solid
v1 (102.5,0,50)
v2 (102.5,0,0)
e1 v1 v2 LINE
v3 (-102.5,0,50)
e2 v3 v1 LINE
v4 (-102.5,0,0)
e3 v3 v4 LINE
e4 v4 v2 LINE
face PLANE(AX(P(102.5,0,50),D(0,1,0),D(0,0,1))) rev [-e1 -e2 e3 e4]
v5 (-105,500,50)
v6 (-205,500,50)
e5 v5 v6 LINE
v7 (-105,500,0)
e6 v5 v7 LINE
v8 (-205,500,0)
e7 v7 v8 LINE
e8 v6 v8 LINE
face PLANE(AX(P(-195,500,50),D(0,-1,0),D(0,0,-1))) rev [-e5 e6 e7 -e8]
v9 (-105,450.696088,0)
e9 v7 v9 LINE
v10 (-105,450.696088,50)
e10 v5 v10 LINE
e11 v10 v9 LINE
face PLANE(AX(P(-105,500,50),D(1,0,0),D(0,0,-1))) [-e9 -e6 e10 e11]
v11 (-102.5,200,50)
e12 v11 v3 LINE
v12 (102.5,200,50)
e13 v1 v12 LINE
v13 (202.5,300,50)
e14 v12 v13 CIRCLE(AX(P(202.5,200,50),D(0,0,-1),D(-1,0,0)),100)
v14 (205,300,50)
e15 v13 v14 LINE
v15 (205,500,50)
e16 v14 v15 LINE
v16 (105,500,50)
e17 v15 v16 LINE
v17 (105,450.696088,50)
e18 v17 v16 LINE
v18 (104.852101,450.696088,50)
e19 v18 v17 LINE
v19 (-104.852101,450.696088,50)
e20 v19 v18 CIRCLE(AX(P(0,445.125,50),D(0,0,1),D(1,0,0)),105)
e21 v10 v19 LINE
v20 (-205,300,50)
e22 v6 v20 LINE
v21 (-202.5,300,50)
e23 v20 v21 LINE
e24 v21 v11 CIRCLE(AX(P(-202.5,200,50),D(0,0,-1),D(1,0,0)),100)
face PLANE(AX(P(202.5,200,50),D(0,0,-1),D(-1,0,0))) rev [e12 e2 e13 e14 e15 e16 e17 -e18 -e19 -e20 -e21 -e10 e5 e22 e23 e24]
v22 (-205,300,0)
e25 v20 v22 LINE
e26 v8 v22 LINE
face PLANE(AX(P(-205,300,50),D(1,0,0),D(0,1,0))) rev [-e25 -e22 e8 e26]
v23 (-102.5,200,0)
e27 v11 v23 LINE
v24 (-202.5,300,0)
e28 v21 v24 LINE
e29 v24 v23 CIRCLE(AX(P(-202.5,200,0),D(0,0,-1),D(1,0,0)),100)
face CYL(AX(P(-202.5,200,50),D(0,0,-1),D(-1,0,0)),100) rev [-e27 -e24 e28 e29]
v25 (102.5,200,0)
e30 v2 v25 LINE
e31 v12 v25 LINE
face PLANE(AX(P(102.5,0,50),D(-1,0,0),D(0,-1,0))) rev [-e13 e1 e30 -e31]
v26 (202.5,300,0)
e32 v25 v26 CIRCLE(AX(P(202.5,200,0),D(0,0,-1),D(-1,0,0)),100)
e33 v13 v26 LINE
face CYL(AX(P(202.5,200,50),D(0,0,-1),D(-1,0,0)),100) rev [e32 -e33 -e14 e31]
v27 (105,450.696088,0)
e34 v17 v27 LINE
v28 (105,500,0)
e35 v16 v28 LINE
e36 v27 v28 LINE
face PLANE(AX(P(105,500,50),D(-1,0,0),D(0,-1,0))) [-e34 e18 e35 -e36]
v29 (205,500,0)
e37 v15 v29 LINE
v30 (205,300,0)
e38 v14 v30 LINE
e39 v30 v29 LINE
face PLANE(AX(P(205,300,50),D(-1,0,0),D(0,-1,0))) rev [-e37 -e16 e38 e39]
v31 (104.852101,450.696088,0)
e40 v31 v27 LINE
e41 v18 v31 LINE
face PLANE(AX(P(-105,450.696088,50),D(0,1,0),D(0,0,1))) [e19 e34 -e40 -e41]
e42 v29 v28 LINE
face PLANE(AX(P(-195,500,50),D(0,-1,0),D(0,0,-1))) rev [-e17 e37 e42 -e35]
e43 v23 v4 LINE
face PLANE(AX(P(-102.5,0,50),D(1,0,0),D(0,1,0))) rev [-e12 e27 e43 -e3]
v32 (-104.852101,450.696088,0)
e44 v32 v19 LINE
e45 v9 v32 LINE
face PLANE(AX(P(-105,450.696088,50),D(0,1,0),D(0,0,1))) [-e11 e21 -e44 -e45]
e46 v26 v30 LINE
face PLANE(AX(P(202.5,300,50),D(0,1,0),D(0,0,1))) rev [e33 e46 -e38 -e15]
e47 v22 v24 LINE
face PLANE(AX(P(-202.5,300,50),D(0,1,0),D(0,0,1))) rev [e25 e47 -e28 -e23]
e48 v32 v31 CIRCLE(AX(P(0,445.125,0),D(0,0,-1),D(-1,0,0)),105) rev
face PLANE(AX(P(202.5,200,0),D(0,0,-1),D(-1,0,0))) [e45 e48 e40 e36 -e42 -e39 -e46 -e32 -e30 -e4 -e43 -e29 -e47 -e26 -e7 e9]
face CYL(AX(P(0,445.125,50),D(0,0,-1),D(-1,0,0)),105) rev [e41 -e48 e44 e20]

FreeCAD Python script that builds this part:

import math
import FreeCAD as App
import Part
import Sketcher

V = App.Vector

doc = App.newDocument("Part")
params = doc.addObject("Spreadsheet::Sheet", "Params")
for row, (alias, value) in enumerate([
    ("sketch1_radius", "100 mm"),
    ("sketch1_radius2", "10 mm"),
    ("sketch1_width", "205 mm"),
    ("sketch1_height", "200 mm"),
    ("sketch1_height2", "190 mm"),
    ("pad1_length", "50 mm"),
    ("sketch2_diameter", "6.1 mm"),
    ("pocket1_length", "6 mm"),
    ("sketch3_diameter", "6.1 mm"),
    ("pocket2_length", "6 mm"),
    ("sketch4_radius", "100 mm"),
    ("sketch4_width", "410 mm"),
    ("sketch4_width2", "205 mm"),
    ("sketch4_height", "200 mm"),
    ("pad2_length", "50 mm"),
    ("sketch5_diameter", "210 mm"),
    ("sketch6_width", "210 mm"),
], start=1):
    params.set(f"A{row}", alias)
    params.set(f"B{row}", "=" + value)
    params.setAlias(f"B{row}", alias)

body = doc.addObject("PartDesign::Body", "Body")

# Sketch on XY plane
sketch1 = doc.addObject("Sketcher::SketchObject", "Sketch")
body.addObject(sketch1)
sketch1.AttachmentSupport = (doc.XY_Plane, [""])
sketch1.MapMode = "FlatFace"
sketch1.addGeometry([
    Part.LineSegment(V(-102.5, 0, 0), V(102.5, 0, 0)),  # 0
    Part.LineSegment(V(102.5, 0, 0), V(102.5, 200, 0)),  # 1
    Part.ArcOfCircle(Part.Circle(V(202.5, 200, 0), V(0, 0, 1), 100), math.radians(90), math.radians(180)),  # 2
    Part.LineSegment(V(202.5, 300, 0), V(205, 300, 0)),  # 3
    Part.LineSegment(V(205, 300, 0), V(205, 490, 0)),  # 4
    Part.ArcOfCircle(Part.Circle(V(195, 490, 0), V(0, 0, 1), 10), math.radians(0), math.radians(90)),  # 5
    Part.LineSegment(V(195, 500, 0), V(112.5, 500, 0)),  # 6
    Part.ArcOfCircle(Part.Circle(V(112.5, 490, 0), V(0, 0, 1), 10), math.radians(90), math.radians(180)),  # 7
    Part.LineSegment(V(102.5, 490, 0), V(102.5, 400.25, 0)),  # 8
    Part.ArcOfCircle(Part.Circle(V(102.25, 400.25, 0), V(0, 0, 1), 0.25), math.radians(-90), math.radians(0)),  # 9
    Part.LineSegment(V(102.25, 400, 0), V(-102.25, 400, 0)),  # 10
    Part.ArcOfCircle(Part.Circle(V(-102.25, 400.25, 0), V(0, 0, 1), 0.25), math.radians(-180), math.radians(-90)),  # 11
    Part.LineSegment(V(-102.5, 400.25, 0), V(-102.5, 490, 0)),  # 12
    Part.ArcOfCircle(Part.Circle(V(-112.5, 490, 0), V(0, 0, 1), 10), math.radians(0), math.radians(90)),  # 13
    Part.LineSegment(V(-112.5, 500, 0), V(-195, 500, 0)),  # 14
    Part.ArcOfCircle(Part.Circle(V(-195, 490, 0), V(0, 0, 1), 10), math.radians(90), math.radians(180)),  # 15
    Part.LineSegment(V(-205, 490, 0), V(-205, 300, 0)),  # 16
    Part.LineSegment(V(-205, 300, 0), V(-202.5, 300, 0)),  # 17
    Part.ArcOfCircle(Part.Circle(V(-202.5, 200, 0), V(0, 0, 1), 100), math.radians(0), math.radians(90)),  # 18
    Part.LineSegment(V(-102.5, 200, 0), V(-102.5, 0, 0)),  # 19
], False)
sketch1.addConstraint([
    Sketcher.Constraint("Coincident", 0, 2, 1, 1),
    Sketcher.Constraint("Tangent", 1, 2, 2, 2),
    Sketcher.Constraint("Tangent", 2, 1, 3, 1),
    Sketcher.Constraint("Coincident", 3, 2, 4, 1),
    Sketcher.Constraint("Tangent", 4, 2, 5, 1),
    Sketcher.Constraint("Tangent", 5, 2, 6, 1),
    Sketcher.Constraint("Tangent", 6, 2, 7, 1),
    Sketcher.Constraint("Tangent", 7, 2, 8, 1),
    Sketcher.Constraint("Tangent", 8, 2, 9, 2),
    Sketcher.Constraint("Tangent", 9, 1, 10, 1),
    Sketcher.Constraint("Tangent", 10, 2, 11, 2),
    Sketcher.Constraint("Tangent", 11, 1, 12, 1),
    Sketcher.Constraint("Tangent", 12, 2, 13, 1),
    Sketcher.Constraint("Tangent", 13, 2, 14, 1),
    Sketcher.Constraint("Tangent", 14, 2, 15, 1),
    Sketcher.Constraint("Tangent", 15, 2, 16, 1),
    Sketcher.Constraint("Coincident", 16, 2, 17, 1),
    Sketcher.Constraint("Tangent", 17, 2, 18, 2),
    Sketcher.Constraint("Tangent", 18, 1, 19, 1),
    Sketcher.Constraint("Coincident", 19, 2, 0, 1),
    Sketcher.Constraint("Horizontal", 0),
    Sketcher.Constraint("Vertical", 1),
    Sketcher.Constraint("Horizontal", 3),
    Sketcher.Constraint("Vertical", 4),
    Sketcher.Constraint("Horizontal", 6),
    Sketcher.Constraint("Vertical", 8),
    Sketcher.Constraint("Horizontal", 10),
    Sketcher.Constraint("Vertical", 12),
    Sketcher.Constraint("Horizontal", 14),
    Sketcher.Constraint("Vertical", 16),
    Sketcher.Constraint("Horizontal", 17),
    Sketcher.Constraint("Vertical", 19),
    Sketcher.Constraint("Equal", 5, 7),
    Sketcher.Constraint("Equal", 9, 11),
    Sketcher.Constraint("Equal", 7, 13),
    Sketcher.Constraint("Equal", 13, 15),
    Sketcher.Constraint("Equal", 2, 18),
    Sketcher.Constraint("Symmetric", 0, 2, 19, 2, -1, 1),
    Sketcher.Constraint("Symmetric", 7, 3, 13, 3, -2),
    Sketcher.Constraint("Symmetric", 3, 2, 16, 2, -2),
    Sketcher.Constraint("Vertical", 1, 2, 7, 2),
    Sketcher.Constraint("Radius", 2, 100.0),
    Sketcher.Constraint("Radius", 5, 10.0),
    Sketcher.Constraint("DistanceX", 0, 1, 0, 2, 205.0),
    Sketcher.Constraint("DistanceY", 1, 1, 1, 2, 200.0),
    Sketcher.Constraint("DistanceY", 4, 1, 4, 2, 190.0),
    Sketcher.Constraint("Radius", 9, 0.25),
    Sketcher.Constraint("DistanceX", 3, 1, 3, 2, 2.5),
    Sketcher.Constraint("DistanceY", -1, 1, 9, 1, 400.0),
])
sketch1.setExpression("Constraints[41]", "Params.sketch1_radius")
sketch1.setExpression("Constraints[42]", "Params.sketch1_radius2")
sketch1.setExpression("Constraints[43]", "Params.sketch1_width")
sketch1.setExpression("Constraints[44]", "Params.sketch1_height")
sketch1.setExpression("Constraints[45]", "Params.sketch1_height2")
pad1 = doc.addObject("PartDesign::Pad", "Pad")
body.addObject(pad1)
pad1.Profile = sketch1
pad1.setExpression("Length", "Params.pad1_length")

# Sketch on YZ plane
sketch2 = doc.addObject("Sketcher::SketchObject", "Sketch001")
body.addObject(sketch2)
sketch2.AttachmentSupport = (doc.YZ_Plane, [""])
sketch2.MapMode = "FlatFace"
sketch2.AttachmentOffset = App.Placement(V(0, 0, -102.5), App.Rotation())
sketch2.addGeometry([
    Part.Circle(V(30, 25, 0), V(0, 0, 1), 3),
    Part.Circle(V(90, 25, 0), V(0, 0, 1), 3),
    Part.Circle(V(150, 25, 0), V(0, 0, 1), 3),
], False)
sketch2.addConstraint([
    Sketcher.Constraint("Equal", 0, 1),
    Sketcher.Constraint("Equal", 1, 2),
    Sketcher.Constraint("Horizontal", 0, 3, 1, 3),
    Sketcher.Constraint("Horizontal", 1, 3, 2, 3),
    Sketcher.Constraint("Diameter", 0, 6.1),
    Sketcher.Constraint("DistanceX", -1, 1, 0, 3, 30.0),
    Sketcher.Constraint("DistanceY", -1, 1, 0, 3, 25.0),
    Sketcher.Constraint("DistanceX", -1, 1, 1, 3, 90.0),
    Sketcher.Constraint("DistanceX", -1, 1, 2, 3, 150.0),
])
sketch2.setExpression("Constraints[4]", "Params.sketch2_diameter")
pocket1 = doc.addObject("PartDesign::Pocket", "Pocket")
body.addObject(pocket1)
pocket1.Profile = sketch2
pocket1.setExpression("Length", "Params.pocket1_length")
pocket1.Reversed = True

# Sketch on YZ plane
sketch3 = doc.addObject("Sketcher::SketchObject", "Sketch002")
body.addObject(sketch3)
sketch3.AttachmentSupport = (doc.YZ_Plane, [""])
sketch3.MapMode = "FlatFace"
sketch3.AttachmentOffset = App.Placement(V(0, 0, 96.5), App.Rotation())
sketch3.addGeometry([
    Part.Circle(V(30, 25, 0), V(0, 0, 1), 3),
    Part.Circle(V(90, 25, 0), V(0, 0, 1), 3),
    Part.Circle(V(150, 25, 0), V(0, 0, 1), 3),
], False)
sketch3.addConstraint([
    Sketcher.Constraint("Equal", 0, 1),
    Sketcher.Constraint("Equal", 1, 2),
    Sketcher.Constraint("Horizontal", 0, 3, 1, 3),
    Sketcher.Constraint("Horizontal", 1, 3, 2, 3),
    Sketcher.Constraint("Diameter", 0, 6.1),
    Sketcher.Constraint("DistanceX", -1, 1, 0, 3, 30.0),
    Sketcher.Constraint("DistanceY", -1, 1, 0, 3, 25.0),
    Sketcher.Constraint("DistanceX", -1, 1, 1, 3, 90.0),
    Sketcher.Constraint("DistanceX", -1, 1, 2, 3, 150.0),
])
sketch3.setExpression("Constraints[4]", "Params.sketch3_diameter")
pocket2 = doc.addObject("PartDesign::Pocket", "Pocket001")
body.addObject(pocket2)
pocket2.Profile = sketch3
pocket2.setExpression("Length", "Params.pocket2_length")
pocket2.Reversed = True

# Sketch on XY plane
sketch4 = doc.addObject("Sketcher::SketchObject", "Sketch003")
body.addObject(sketch4)
sketch4.AttachmentSupport = (doc.XY_Plane, [""])
sketch4.MapMode = "FlatFace"
sketch4.addGeometry([
    Part.LineSegment(V(202.5, 300, 0), V(205, 300, 0)),  # 0
    Part.LineSegment(V(205, 300, 0), V(205, 500, 0)),  # 1
    Part.LineSegment(V(205, 500, 0), V(-205, 500, 0)),  # 2
    Part.LineSegment(V(-205, 500, 0), V(-205, 300, 0)),  # 3
    Part.LineSegment(V(-205, 300, 0), V(-202.5, 300, 0)),  # 4
    Part.ArcOfCircle(Part.Circle(V(-202.5, 200, 0), V(0, 0, 1), 100), math.radians(0), math.radians(90)),  # 5
    Part.LineSegment(V(-102.5, 200, 0), V(-102.5, 0, 0)),  # 6
    Part.LineSegment(V(-102.5, 0, 0), V(102.5, 0, 0)),  # 7
    Part.LineSegment(V(102.5, 0, 0), V(102.5, 200, 0)),  # 8
    Part.ArcOfCircle(Part.Circle(V(202.5, 200, 0), V(0, 0, 1), 100), math.radians(90), math.radians(180)),  # 9
], False)
sketch4.addConstraint([
    Sketcher.Constraint("Coincident", 0, 2, 1, 1),
    Sketcher.Constraint("Coincident", 1, 2, 2, 1),
    Sketcher.Constraint("Coincident", 2, 2, 3, 1),
    Sketcher.Constraint("Coincident", 3, 2, 4, 1),
    Sketcher.Constraint("Tangent", 4, 2, 5, 2),
    Sketcher.Constraint("Tangent", 5, 1, 6, 1),
    Sketcher.Constraint("Coincident", 6, 2, 7, 1),
    Sketcher.Constraint("Coincident", 7, 2, 8, 1),
    Sketcher.Constraint("Tangent", 8, 2, 9, 2),
    Sketcher.Constraint("Tangent", 9, 1, 0, 1),
    Sketcher.Constraint("Horizontal", 0),
    Sketcher.Constraint("Vertical", 1),
    Sketcher.Constraint("Horizontal", 2),
    Sketcher.Constraint("Vertical", 3),
    Sketcher.Constraint("Horizontal", 4),
    Sketcher.Constraint("Vertical", 6),
    Sketcher.Constraint("Horizontal", 7),
    Sketcher.Constraint("Vertical", 8),
    Sketcher.Constraint("Equal", 5, 9),
    Sketcher.Constraint("Symmetric", 6, 2, 7, 2, -1, 1),
    Sketcher.Constraint("Symmetric", 0, 2, 3, 2, -2),
    Sketcher.Constraint("Equal", 3, 6),
    Sketcher.Constraint("Radius", 5, 100.0),
    Sketcher.Constraint("DistanceX", 2, 2, 2, 1, 410.0),
    Sketcher.Constraint("DistanceX", 7, 1, 7, 2, 205.0),
    Sketcher.Constraint("DistanceY", 1, 1, 1, 2, 200.0),
])
sketch4.setExpression("Constraints[22]", "Params.sketch4_radius")
sketch4.setExpression("Constraints[23]", "Params.sketch4_width")
sketch4.setExpression("Constraints[24]", "Params.sketch4_width2")
sketch4.setExpression("Constraints[25]", "Params.sketch4_height")
pad2 = doc.addObject("PartDesign::Pad", "Pad001")
body.addObject(pad2)
pad2.Profile = sketch4
pad2.setExpression("Length", "Params.pad2_length")

# Sketch on XY plane
sketch5 = doc.addObject("Sketcher::SketchObject", "Sketch004")
body.addObject(sketch5)
sketch5.AttachmentSupport = (doc.XY_Plane, [""])
sketch5.MapMode = "FlatFace"
sketch5.addGeometry(Part.Circle(V(0, 445, 0), V(0, 0, 1), 105), False)
sketch5.addConstraint([
    Sketcher.Constraint("PointOnObject", 0, 3, -2),
    Sketcher.Constraint("Diameter", 0, 210.0),
    Sketcher.Constraint("DistanceY", -1, 1, 0, 3, 445.125),
])
sketch5.setExpression("Constraints[1]", "Params.sketch5_diameter")
pocket3 = doc.addObject("PartDesign::Pocket", "Pocket002")
body.addObject(pocket3)
pocket3.Profile = sketch5
pocket3.Type = "ThroughAll"
pocket3.Reversed = True

# Sketch on XY plane
sketch6 = doc.addObject("Sketcher::SketchObject", "Sketch005")
body.addObject(sketch6)
sketch6.AttachmentSupport = (doc.XY_Plane, [""])
sketch6.MapMode = "FlatFace"
sketch6.addGeometry([
    Part.LineSegment(V(-105, 500, 0), V(-105, 451, 0)),
    Part.LineSegment(V(-105, 451, 0), V(105, 451, 0)),
    Part.LineSegment(V(105, 451, 0), V(105, 500, 0)),
    Part.LineSegment(V(105, 500, 0), V(-105, 500, 0)),
], False)
sketch6.addConstraint([
    Sketcher.Constraint("Coincident", 0, 2, 1, 1),
    Sketcher.Constraint("Coincident", 1, 2, 2, 1),
    Sketcher.Constraint("Coincident", 2, 2, 3, 1),
    Sketcher.Constraint("Coincident", 3, 2, 0, 1),
    Sketcher.Constraint("Vertical", 0),
    Sketcher.Constraint("Horizontal", 1),
    Sketcher.Constraint("Vertical", 2),
    Sketcher.Constraint("Horizontal", 3),
    Sketcher.Constraint("DistanceX", 1, 1, 1, 2, 210.0),
    Sketcher.Constraint("DistanceX", 0, 2, -1, 1, 105.0),
    Sketcher.Constraint("DistanceY", -1, 1, 2, 2, 500.0),
    Sketcher.Constraint("DistanceY", 0, 2, 0, 1, 49.303912),
])
sketch6.setExpression("Constraints[8]", "Params.sketch6_width")
pocket4 = doc.addObject("PartDesign::Pocket", "Pocket003")
body.addObject(pocket4)
pocket4.Profile = sketch6
pocket4.Type = "ThroughAll"
pocket4.Reversed = True

doc.recompute()
